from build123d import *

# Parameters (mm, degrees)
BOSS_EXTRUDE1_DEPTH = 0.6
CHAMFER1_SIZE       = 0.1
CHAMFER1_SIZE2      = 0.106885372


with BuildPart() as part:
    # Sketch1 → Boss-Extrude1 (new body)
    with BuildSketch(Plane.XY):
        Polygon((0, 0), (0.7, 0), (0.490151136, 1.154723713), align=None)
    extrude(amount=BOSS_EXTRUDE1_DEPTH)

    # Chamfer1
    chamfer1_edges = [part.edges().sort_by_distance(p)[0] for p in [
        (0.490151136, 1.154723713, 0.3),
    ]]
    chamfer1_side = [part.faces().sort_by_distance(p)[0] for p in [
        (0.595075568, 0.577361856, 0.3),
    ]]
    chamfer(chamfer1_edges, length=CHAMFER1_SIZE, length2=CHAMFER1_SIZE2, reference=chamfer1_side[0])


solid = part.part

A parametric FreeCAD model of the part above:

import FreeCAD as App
import Part
import Sketcher
Q = App.Units.Quantity


def edges_at(feature, points):
    """Names of the edges that pass closest to the given points."""
    edges = feature.Shape.Edges
    near = lambda p: min(range(len(edges)), key=lambda i: edges[i].distToShape(Part.Vertex(*p))[0])
    return sorted({f"Edge{near(p) + 1}" for p in points})


def add_polygon(sketch, points):
    """Adds a closed chain of lines whose ends are joined by coincident constraints."""
    first, n = sketch.GeometryCount, len(points)
    for a, b in zip(points, points[1:] + points[:1]):
        sketch.addGeometry(Part.LineSegment(App.Vector(*a, 0), App.Vector(*b, 0)), False)
    for i in range(n):
        sketch.addConstraint(Sketcher.Constraint("Coincident", first + i, 2, first + (i + 1) % n, 1))

doc = App.newDocument("Part")
params = doc.addObject("Spreadsheet::Sheet", "Params")
for row, (alias, value) in enumerate([
    ("sketch1_width", "0.7 mm"),
    ("pad1_length", "0.6 mm"),
    ("chamfer_size", "0.1 mm"),
    ("chamfer_size2", "0.106885 mm"),
], start=1):
    params.set(f"A{row}", alias)
    params.set(f"B{row}", "=" + value)
    params.setAlias(f"B{row}", alias)

body = doc.addObject("PartDesign::Body", "Body")

sketch1 = body.newObject("Sketcher::SketchObject", "Sketch")
sketch1.AttachmentSupport = (doc.getObject("XY_Plane"), [""])
sketch1.MapMode = "FlatFace"
add_polygon(sketch1, [(0, 0), (0.7, 0), (0.5, 1.2)])
sketch1.addConstraint([
    Sketcher.Constraint("Horizontal", 0),
    Sketcher.Constraint("Coincident", 2, 2, -1, 1),
    Sketcher.Constraint("Angle", 2, Q("-113 deg")),
    Sketcher.Constraint("DistanceX", 0, 1, 0, 2, Q("0.7 mm")),
    Sketcher.Constraint("Angle", 1, Q("100.3 deg")),
])
sketch1.setExpression("Constraints[6]", "Params.sketch1_width")
pad1 = body.newObject("PartDesign::Pad", "Pad")
pad1.Profile = sketch1
pad1.setExpression("Length", "Params.pad1_length")
doc.recompute()

chamfer = body.newObject("PartDesign::Chamfer", "Chamfer")
chamfer.Base = (pad1, edges_at(pad1, [(0.49, 1.155, 0.3)]))
chamfer.ChamferType = "Two distances"
chamfer.setExpression("Size", "Params.chamfer_size")
chamfer.setExpression("Size2", "Params.chamfer_size2")

doc.recompute()
